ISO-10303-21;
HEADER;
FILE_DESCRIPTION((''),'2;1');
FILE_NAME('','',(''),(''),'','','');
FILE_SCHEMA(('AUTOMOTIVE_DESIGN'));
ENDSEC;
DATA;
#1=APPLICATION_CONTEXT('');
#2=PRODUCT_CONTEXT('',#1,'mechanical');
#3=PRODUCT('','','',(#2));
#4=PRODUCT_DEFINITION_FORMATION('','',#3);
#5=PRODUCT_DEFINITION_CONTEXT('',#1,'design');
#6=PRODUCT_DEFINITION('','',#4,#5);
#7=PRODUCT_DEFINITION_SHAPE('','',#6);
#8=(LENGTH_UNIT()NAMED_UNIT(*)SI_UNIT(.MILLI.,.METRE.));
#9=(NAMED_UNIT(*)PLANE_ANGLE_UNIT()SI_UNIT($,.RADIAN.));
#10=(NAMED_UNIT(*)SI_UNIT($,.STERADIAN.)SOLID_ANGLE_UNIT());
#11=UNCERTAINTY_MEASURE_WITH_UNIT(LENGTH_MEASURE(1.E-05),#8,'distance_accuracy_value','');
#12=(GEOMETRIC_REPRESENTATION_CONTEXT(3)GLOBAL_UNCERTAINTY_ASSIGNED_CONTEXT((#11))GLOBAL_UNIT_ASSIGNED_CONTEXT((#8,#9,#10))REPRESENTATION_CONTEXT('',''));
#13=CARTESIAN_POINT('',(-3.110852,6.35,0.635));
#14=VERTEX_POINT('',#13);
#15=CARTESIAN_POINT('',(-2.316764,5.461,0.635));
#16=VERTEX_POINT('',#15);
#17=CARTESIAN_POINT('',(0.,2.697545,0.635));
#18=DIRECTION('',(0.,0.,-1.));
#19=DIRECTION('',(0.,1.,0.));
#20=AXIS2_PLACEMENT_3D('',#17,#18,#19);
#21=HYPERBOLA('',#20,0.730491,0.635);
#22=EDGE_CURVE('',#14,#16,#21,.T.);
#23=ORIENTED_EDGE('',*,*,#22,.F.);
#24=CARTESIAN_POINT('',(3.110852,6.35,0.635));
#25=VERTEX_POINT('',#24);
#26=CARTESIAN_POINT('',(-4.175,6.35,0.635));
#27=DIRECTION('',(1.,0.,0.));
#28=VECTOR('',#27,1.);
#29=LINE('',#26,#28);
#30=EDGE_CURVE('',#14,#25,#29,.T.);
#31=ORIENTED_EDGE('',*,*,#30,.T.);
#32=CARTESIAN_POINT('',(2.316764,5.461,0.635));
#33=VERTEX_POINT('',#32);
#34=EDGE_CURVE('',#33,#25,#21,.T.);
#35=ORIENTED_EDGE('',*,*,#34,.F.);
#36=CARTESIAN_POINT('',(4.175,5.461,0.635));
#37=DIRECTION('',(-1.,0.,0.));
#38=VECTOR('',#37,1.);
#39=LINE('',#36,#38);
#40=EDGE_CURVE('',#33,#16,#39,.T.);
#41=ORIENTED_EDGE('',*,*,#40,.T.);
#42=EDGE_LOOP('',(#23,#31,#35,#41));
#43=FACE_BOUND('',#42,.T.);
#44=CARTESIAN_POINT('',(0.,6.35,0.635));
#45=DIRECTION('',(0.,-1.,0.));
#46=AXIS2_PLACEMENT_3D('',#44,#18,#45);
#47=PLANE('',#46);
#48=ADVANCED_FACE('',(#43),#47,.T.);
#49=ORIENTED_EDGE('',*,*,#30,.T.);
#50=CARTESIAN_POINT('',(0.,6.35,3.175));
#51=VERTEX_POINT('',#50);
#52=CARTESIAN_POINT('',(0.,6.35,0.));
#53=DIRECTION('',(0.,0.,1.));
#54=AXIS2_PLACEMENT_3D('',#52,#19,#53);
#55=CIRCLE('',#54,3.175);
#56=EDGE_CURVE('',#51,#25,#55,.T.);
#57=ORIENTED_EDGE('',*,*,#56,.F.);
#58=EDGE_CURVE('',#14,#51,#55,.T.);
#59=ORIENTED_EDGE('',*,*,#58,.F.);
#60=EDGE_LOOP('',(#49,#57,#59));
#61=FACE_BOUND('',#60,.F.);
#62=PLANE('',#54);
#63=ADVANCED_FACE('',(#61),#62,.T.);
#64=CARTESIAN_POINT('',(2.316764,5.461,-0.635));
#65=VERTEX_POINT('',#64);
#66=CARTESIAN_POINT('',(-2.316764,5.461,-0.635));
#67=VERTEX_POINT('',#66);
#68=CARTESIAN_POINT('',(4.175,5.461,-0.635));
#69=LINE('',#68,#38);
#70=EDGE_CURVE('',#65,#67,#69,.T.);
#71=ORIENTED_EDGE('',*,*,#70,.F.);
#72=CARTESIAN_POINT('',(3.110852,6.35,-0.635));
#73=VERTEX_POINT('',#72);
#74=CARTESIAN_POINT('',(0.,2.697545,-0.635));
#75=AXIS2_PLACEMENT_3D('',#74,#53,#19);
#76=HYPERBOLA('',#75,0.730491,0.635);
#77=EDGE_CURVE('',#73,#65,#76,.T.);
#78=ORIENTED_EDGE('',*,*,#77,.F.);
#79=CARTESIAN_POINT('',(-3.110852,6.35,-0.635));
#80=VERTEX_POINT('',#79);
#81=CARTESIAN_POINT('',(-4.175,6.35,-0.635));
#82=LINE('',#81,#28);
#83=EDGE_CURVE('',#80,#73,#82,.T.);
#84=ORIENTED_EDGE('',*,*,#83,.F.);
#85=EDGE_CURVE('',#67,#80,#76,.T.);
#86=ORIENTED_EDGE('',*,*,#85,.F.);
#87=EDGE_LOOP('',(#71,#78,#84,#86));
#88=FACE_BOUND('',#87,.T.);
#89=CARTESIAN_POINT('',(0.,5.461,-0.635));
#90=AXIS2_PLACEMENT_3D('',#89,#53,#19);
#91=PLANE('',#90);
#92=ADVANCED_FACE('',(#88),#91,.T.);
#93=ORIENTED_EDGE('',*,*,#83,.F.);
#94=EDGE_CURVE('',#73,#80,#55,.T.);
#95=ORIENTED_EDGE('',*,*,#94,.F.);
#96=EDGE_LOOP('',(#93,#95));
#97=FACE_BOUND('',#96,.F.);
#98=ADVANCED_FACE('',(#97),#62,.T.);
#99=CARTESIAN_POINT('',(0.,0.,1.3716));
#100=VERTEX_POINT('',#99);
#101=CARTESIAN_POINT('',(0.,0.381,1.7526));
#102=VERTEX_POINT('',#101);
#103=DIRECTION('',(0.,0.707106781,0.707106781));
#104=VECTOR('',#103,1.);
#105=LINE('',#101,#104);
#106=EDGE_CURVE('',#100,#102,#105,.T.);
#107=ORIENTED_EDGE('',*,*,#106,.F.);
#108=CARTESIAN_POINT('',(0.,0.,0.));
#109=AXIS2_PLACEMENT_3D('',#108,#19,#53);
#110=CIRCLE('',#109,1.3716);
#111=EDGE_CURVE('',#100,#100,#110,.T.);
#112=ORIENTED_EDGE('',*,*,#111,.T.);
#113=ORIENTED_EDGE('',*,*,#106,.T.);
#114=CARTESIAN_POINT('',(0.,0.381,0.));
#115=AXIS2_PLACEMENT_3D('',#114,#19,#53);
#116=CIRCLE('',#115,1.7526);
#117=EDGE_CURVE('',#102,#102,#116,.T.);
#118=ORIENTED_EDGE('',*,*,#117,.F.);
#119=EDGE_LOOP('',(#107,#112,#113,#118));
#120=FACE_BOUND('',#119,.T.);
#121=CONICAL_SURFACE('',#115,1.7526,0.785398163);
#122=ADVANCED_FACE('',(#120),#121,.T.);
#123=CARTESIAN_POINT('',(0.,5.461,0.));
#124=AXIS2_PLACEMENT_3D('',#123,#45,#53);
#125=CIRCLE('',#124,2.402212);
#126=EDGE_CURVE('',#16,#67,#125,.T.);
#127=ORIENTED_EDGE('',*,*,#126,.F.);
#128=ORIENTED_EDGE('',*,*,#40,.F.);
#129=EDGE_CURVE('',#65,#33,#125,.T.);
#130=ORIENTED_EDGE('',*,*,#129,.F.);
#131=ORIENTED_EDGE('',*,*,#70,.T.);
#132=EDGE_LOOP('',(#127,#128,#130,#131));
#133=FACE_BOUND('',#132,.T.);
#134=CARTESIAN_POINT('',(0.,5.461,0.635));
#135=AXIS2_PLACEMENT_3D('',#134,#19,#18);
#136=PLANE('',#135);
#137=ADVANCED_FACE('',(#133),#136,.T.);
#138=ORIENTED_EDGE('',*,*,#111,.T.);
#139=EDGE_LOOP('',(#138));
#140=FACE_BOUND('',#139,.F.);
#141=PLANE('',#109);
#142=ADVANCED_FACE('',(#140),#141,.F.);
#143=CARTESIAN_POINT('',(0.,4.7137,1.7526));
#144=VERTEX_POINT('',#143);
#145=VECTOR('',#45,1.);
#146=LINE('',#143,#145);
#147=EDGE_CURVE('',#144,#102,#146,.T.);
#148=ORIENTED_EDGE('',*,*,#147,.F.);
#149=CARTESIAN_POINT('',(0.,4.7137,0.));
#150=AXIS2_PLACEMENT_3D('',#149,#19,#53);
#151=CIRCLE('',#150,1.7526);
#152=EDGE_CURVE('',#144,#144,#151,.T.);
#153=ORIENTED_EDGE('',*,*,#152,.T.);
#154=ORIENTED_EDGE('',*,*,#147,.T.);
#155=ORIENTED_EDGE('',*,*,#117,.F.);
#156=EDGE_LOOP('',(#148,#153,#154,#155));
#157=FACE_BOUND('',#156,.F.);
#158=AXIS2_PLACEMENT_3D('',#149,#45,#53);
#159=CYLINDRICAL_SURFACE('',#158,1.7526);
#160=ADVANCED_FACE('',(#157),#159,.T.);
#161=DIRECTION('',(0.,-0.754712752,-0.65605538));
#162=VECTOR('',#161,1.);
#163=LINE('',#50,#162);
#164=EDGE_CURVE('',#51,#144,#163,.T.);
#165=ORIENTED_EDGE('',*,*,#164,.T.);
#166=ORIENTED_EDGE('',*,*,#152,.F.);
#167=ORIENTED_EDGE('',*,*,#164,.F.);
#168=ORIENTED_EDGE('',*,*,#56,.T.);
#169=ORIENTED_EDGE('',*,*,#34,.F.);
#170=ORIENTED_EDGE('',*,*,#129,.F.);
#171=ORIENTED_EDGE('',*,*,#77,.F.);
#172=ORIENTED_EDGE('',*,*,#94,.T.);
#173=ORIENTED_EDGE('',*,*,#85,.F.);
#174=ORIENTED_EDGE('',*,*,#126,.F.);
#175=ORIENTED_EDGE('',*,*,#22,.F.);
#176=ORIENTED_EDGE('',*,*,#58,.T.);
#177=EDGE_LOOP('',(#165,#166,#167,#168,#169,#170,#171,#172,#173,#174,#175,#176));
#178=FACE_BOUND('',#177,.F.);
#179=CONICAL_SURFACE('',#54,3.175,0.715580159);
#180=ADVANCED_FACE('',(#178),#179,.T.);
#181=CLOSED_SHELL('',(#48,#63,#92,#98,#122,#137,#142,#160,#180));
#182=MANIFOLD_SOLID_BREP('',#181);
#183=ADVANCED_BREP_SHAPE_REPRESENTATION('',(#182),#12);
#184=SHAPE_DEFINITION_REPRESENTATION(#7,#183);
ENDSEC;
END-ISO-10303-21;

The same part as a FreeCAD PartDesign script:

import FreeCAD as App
import Part
import Sketcher
Q = App.Units.Quantity


def edges_at(feature, points):
    """Names of the edges that pass closest to the given points."""
    edges = feature.Shape.Edges
    near = lambda p: min(range(len(edges)), key=lambda i: edges[i].distToShape(Part.Vertex(*p))[0])
    return sorted({f"Edge{near(p) + 1}" for p in points})

doc = App.newDocument("Part")
body = doc.addObject("PartDesign::Body", "Body")

sketch1 = body.newObject("Sketcher::SketchObject", "Sketch")
sketch1.AttachmentSupport = (doc.getObject("YZ_Plane"), [""])
sketch1.MapMode = "FlatFace"
sketch1.addGeometry(Part.LineSegment(App.Vector(0, 0, 0), App.Vector(6.35, 0, 0)), False)
sketch1.addGeometry(Part.LineSegment(App.Vector(6.35, 0, 0), App.Vector(6.35, 3.175, 0)), False)
sketch1.addGeometry(Part.LineSegment(App.Vector(6.35, 3.175, 0), App.Vector(4.7137, 1.7526, 0)), False)
sketch1.addGeometry(Part.LineSegment(App.Vector(4.7137, 1.7526, 0), App.Vector(0, 1.7526, 0)), False)
sketch1.addGeometry(Part.LineSegment(App.Vector(0, 1.7526, 0), App.Vector(0, 0, 0)), False)
sketch1.addConstraint(Sketcher.Constraint("Coincident", 0, 2, 1, 1))
sketch1.addConstraint(Sketcher.Constraint("Coincident", 1, 2, 2, 1))
sketch1.addConstraint(Sketcher.Constraint("Coincident", 2, 2, 3, 1))
sketch1.addConstraint(Sketcher.Constraint("Coincident", 3, 2, 4, 1))
sketch1.addConstraint(Sketcher.Constraint("Coincident", 4, 2, 0, 1))
sketch1.addConstraint(Sketcher.Constraint("Horizontal", 0))
sketch1.addConstraint(Sketcher.Constraint("Vertical", 1))
sketch1.addConstraint(Sketcher.Constraint("Horizontal", 3))
sketch1.addConstraint(Sketcher.Constraint("Vertical", 4))
sketch1.addConstraint(Sketcher.Constraint("Coincident", 4, 2, -1, 1))
sketch1.addConstraint(Sketcher.Constraint("DistanceX", 0, 1, 0, 2, Q("0.25 in")))
sketch1.addConstraint(Sketcher.Constraint("Angle", 2, Q("-139.0003 deg")))
sketch1.addConstraint(Sketcher.Constraint("DistanceY", 1, 1, 1, 2, Q("0.125 in")))
sketch1.addConstraint(Sketcher.Constraint("DistanceY", 4, 2, 4, 1, Q("0.069 in")))
revolution = body.newObject("PartDesign::Revolution", "Revolution")
revolution.Profile = sketch1
revolution.ReferenceAxis = (sketch1, ["H_Axis"])
revolution.Angle = 360

sketch2 = body.newObject("Sketcher::SketchObject", "Sketch001")
sketch2.AttachmentSupport = (doc.getObject("YZ_Plane"), [""])
sketch2.MapMode = "FlatFace"
sketch2.addGeometry(Part.LineSegment(App.Vector(5.461, -0.635, 0), App.Vector(6.35, -0.635, 0)), False)
sketch2.addGeometry(Part.LineSegment(App.Vector(6.35, -0.635, 0), App.Vector(6.35, 0.635, 0)), False)
sketch2.addGeometry(Part.LineSegment(App.Vector(6.35, 0.635, 0), App.Vector(5.461, 0.635, 0)), False)
sketch2.addGeometry(Part.LineSegment(App.Vector(5.461, 0.635, 0), App.Vector(5.461, -0.635, 0)), False)
sketch2.addConstraint(Sketcher.Constraint("Coincident", 0, 2, 1, 1))
sketch2.addConstraint(Sketcher.Constraint("Coincident", 1, 2, 2, 1))
sketch2.addConstraint(Sketcher.Constraint("Coincident", 2, 2, 3, 1))
sketch2.addConstraint(Sketcher.Constraint("Coincident", 3, 2, 0, 1))
sketch2.addConstraint(Sketcher.Constraint("Horizontal", 0))
sketch2.addConstraint(Sketcher.Constraint("Vertical", 1))
sketch2.addConstraint(Sketcher.Constraint("Horizontal", 2))
sketch2.addConstraint(Sketcher.Constraint("Vertical", 3))
sketch2.addConstraint(Sketcher.Constraint("DistanceY", 1, 1, 1, 2, Q("0.05 in")))
sketch2.addConstraint(Sketcher.Constraint("DistanceX", 0, 1, 0, 2, Q("0.035 in")))
sketch2.addConstraint(Sketcher.Constraint("DistanceX", -1, 1, 0, 2, Q("0.25 in")))
sketch2.addConstraint(Sketcher.Constraint("DistanceY", 0, 2, -1, 1, Q("0.025 in")))
pocket1 = body.newObject("PartDesign::Pocket", "Pocket")
pocket1.Profile = sketch2
pocket1.Type = "ThroughAll"
pocket1.Midplane = True
doc.recompute()

chamfer = body.newObject("PartDesign::Chamfer", "Chamfer")
chamfer.Base = (pocket1, edges_at(pocket1, [(0, 0, -1.753)]))
chamfer.Size = Q("0.015 in")

doc.recompute()
